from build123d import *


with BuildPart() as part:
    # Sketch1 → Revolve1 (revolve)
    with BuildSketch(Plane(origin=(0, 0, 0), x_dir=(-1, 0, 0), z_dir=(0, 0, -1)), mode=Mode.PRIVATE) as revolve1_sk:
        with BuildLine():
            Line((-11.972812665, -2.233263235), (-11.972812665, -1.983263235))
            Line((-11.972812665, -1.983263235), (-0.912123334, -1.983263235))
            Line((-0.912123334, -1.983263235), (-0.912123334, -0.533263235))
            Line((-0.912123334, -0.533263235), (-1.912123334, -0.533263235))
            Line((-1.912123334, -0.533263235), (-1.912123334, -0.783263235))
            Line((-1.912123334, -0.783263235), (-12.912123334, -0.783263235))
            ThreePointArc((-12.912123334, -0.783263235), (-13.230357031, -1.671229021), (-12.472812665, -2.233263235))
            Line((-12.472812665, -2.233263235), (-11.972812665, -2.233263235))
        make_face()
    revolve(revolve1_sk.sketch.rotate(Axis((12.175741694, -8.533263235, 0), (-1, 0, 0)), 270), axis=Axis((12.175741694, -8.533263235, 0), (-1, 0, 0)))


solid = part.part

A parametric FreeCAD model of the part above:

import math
import FreeCAD as App
import Part
import Sketcher

V = App.Vector
Q = App.Units.Quantity

doc = App.newDocument("Part")
body = doc.addObject("PartDesign::Body", "Body")

# Sketch on XY plane
sketch1 = body.newObject("Sketcher::SketchObject", "Sketch")
sketch1.AttachmentSupport = (doc.getObject("XY_Plane"), [""])
sketch1.MapMode = "FlatFace"
sketch1.addGeometry(Part.LineSegment(V(11.972813, -2.233263, 0), V(11.972813, -1.983263, 0)), False)
sketch1.addGeometry(Part.LineSegment(V(11.972813, -1.983263, 0), V(0.912123, -1.983263, 0)), False)
sketch1.addGeometry(Part.LineSegment(V(0.912123, -1.983263, 0), V(0.912123, -0.533263, 0)), False)
sketch1.addGeometry(Part.LineSegment(V(0.912123, -0.533263, 0), V(1.912123, -0.533263, 0)), False)
sketch1.addGeometry(Part.LineSegment(V(1.912123, -0.533263, 0), V(1.912123, -0.783263, 0)), False)
sketch1.addGeometry(Part.LineSegment(V(1.912123, -0.783263, 0), V(12.912123, -0.783263, 0)), False)
sketch1.addGeometry(Part.ArcOfCircle(Part.Circle(V(12.472813, -1.441714, 0), V(0, 0, 1), 0.79155), math.radians(-90), math.radians(56.28923)), False)
sketch1.addGeometry(Part.LineSegment(V(12.472813, -2.233263, 0), V(11.972813, -2.233263, 0)), False)
sketch1.addGeometry(Part.LineSegment(V(12.912123, -8.533263, 0), V(0.912123, -8.533263, 0)), True)  # axis
sketch1.addConstraint(Sketcher.Constraint("Coincident", 0, 2, 1, 1))
sketch1.addConstraint(Sketcher.Constraint("Coincident", 1, 2, 2, 1))
sketch1.addConstraint(Sketcher.Constraint("Coincident", 2, 2, 3, 1))
sketch1.addConstraint(Sketcher.Constraint("Coincident", 3, 2, 4, 1))
sketch1.addConstraint(Sketcher.Constraint("Coincident", 4, 2, 5, 1))
sketch1.addConstraint(Sketcher.Constraint("Coincident", 5, 2, 6, 2))
sketch1.addConstraint(Sketcher.Constraint("Tangent", 6, 1, 7, 1))
sketch1.addConstraint(Sketcher.Constraint("Coincident", 7, 2, 0, 1))
sketch1.addConstraint(Sketcher.Constraint("Vertical", 0))
sketch1.addConstraint(Sketcher.Constraint("Horizontal", 1))
sketch1.addConstraint(Sketcher.Constraint("Vertical", 2))
sketch1.addConstraint(Sketcher.Constraint("Horizontal", 3))
sketch1.addConstraint(Sketcher.Constraint("Vertical", 4))
sketch1.addConstraint(Sketcher.Constraint("Horizontal", 5))
sketch1.addConstraint(Sketcher.Constraint("Horizontal", 7))
sketch1.addConstraint(Sketcher.Constraint("Horizontal", 8))
sketch1.addConstraint(Sketcher.Constraint("Vertical", 5, 2, 8, 1))
sketch1.addConstraint(Sketcher.Constraint("Vertical", 2, 2, 8, 2))
sketch1.addConstraint(Sketcher.Constraint("Equal", 0, 4))
sketch1.addConstraint(Sketcher.Constraint("DistanceX", 3, 1, 3, 2, Q("1 mm")))
sketch1.addConstraint(Sketcher.Constraint("DistanceX", 5, 1, 5, 2, Q("11 mm")))
sketch1.addConstraint(Sketcher.Constraint("DistanceX", 7, 2, 7, 1, Q("0.5 mm")))
sketch1.addConstraint(Sketcher.Constraint("DistanceY", 8, 2, 2, 2, Q("8 mm")))
sketch1.addConstraint(Sketcher.Constraint("DistanceY", 0, 1, 0, 2, Q("0.25 mm")))
sketch1.addConstraint(Sketcher.Constraint("DistanceY", 2, 1, 2, 2, Q("1.45 mm")))
sketch1.addConstraint(Sketcher.Constraint("Radius", 6, Q("0.79155 mm")))
sketch1.addConstraint(Sketcher.Constraint("DistanceX", -1, 1, 6, 3, Q("12.472813 mm")))
sketch1.addConstraint(Sketcher.Constraint("DistanceY", 6, 3, -1, 1, Q("1.441714 mm")))
revolution = body.newObject("PartDesign::Revolution", "Revolution")
revolution.Profile = sketch1
revolution.ReferenceAxis = (sketch1, ["Axis0"])
revolution.Angle = 360

doc.recompute()
